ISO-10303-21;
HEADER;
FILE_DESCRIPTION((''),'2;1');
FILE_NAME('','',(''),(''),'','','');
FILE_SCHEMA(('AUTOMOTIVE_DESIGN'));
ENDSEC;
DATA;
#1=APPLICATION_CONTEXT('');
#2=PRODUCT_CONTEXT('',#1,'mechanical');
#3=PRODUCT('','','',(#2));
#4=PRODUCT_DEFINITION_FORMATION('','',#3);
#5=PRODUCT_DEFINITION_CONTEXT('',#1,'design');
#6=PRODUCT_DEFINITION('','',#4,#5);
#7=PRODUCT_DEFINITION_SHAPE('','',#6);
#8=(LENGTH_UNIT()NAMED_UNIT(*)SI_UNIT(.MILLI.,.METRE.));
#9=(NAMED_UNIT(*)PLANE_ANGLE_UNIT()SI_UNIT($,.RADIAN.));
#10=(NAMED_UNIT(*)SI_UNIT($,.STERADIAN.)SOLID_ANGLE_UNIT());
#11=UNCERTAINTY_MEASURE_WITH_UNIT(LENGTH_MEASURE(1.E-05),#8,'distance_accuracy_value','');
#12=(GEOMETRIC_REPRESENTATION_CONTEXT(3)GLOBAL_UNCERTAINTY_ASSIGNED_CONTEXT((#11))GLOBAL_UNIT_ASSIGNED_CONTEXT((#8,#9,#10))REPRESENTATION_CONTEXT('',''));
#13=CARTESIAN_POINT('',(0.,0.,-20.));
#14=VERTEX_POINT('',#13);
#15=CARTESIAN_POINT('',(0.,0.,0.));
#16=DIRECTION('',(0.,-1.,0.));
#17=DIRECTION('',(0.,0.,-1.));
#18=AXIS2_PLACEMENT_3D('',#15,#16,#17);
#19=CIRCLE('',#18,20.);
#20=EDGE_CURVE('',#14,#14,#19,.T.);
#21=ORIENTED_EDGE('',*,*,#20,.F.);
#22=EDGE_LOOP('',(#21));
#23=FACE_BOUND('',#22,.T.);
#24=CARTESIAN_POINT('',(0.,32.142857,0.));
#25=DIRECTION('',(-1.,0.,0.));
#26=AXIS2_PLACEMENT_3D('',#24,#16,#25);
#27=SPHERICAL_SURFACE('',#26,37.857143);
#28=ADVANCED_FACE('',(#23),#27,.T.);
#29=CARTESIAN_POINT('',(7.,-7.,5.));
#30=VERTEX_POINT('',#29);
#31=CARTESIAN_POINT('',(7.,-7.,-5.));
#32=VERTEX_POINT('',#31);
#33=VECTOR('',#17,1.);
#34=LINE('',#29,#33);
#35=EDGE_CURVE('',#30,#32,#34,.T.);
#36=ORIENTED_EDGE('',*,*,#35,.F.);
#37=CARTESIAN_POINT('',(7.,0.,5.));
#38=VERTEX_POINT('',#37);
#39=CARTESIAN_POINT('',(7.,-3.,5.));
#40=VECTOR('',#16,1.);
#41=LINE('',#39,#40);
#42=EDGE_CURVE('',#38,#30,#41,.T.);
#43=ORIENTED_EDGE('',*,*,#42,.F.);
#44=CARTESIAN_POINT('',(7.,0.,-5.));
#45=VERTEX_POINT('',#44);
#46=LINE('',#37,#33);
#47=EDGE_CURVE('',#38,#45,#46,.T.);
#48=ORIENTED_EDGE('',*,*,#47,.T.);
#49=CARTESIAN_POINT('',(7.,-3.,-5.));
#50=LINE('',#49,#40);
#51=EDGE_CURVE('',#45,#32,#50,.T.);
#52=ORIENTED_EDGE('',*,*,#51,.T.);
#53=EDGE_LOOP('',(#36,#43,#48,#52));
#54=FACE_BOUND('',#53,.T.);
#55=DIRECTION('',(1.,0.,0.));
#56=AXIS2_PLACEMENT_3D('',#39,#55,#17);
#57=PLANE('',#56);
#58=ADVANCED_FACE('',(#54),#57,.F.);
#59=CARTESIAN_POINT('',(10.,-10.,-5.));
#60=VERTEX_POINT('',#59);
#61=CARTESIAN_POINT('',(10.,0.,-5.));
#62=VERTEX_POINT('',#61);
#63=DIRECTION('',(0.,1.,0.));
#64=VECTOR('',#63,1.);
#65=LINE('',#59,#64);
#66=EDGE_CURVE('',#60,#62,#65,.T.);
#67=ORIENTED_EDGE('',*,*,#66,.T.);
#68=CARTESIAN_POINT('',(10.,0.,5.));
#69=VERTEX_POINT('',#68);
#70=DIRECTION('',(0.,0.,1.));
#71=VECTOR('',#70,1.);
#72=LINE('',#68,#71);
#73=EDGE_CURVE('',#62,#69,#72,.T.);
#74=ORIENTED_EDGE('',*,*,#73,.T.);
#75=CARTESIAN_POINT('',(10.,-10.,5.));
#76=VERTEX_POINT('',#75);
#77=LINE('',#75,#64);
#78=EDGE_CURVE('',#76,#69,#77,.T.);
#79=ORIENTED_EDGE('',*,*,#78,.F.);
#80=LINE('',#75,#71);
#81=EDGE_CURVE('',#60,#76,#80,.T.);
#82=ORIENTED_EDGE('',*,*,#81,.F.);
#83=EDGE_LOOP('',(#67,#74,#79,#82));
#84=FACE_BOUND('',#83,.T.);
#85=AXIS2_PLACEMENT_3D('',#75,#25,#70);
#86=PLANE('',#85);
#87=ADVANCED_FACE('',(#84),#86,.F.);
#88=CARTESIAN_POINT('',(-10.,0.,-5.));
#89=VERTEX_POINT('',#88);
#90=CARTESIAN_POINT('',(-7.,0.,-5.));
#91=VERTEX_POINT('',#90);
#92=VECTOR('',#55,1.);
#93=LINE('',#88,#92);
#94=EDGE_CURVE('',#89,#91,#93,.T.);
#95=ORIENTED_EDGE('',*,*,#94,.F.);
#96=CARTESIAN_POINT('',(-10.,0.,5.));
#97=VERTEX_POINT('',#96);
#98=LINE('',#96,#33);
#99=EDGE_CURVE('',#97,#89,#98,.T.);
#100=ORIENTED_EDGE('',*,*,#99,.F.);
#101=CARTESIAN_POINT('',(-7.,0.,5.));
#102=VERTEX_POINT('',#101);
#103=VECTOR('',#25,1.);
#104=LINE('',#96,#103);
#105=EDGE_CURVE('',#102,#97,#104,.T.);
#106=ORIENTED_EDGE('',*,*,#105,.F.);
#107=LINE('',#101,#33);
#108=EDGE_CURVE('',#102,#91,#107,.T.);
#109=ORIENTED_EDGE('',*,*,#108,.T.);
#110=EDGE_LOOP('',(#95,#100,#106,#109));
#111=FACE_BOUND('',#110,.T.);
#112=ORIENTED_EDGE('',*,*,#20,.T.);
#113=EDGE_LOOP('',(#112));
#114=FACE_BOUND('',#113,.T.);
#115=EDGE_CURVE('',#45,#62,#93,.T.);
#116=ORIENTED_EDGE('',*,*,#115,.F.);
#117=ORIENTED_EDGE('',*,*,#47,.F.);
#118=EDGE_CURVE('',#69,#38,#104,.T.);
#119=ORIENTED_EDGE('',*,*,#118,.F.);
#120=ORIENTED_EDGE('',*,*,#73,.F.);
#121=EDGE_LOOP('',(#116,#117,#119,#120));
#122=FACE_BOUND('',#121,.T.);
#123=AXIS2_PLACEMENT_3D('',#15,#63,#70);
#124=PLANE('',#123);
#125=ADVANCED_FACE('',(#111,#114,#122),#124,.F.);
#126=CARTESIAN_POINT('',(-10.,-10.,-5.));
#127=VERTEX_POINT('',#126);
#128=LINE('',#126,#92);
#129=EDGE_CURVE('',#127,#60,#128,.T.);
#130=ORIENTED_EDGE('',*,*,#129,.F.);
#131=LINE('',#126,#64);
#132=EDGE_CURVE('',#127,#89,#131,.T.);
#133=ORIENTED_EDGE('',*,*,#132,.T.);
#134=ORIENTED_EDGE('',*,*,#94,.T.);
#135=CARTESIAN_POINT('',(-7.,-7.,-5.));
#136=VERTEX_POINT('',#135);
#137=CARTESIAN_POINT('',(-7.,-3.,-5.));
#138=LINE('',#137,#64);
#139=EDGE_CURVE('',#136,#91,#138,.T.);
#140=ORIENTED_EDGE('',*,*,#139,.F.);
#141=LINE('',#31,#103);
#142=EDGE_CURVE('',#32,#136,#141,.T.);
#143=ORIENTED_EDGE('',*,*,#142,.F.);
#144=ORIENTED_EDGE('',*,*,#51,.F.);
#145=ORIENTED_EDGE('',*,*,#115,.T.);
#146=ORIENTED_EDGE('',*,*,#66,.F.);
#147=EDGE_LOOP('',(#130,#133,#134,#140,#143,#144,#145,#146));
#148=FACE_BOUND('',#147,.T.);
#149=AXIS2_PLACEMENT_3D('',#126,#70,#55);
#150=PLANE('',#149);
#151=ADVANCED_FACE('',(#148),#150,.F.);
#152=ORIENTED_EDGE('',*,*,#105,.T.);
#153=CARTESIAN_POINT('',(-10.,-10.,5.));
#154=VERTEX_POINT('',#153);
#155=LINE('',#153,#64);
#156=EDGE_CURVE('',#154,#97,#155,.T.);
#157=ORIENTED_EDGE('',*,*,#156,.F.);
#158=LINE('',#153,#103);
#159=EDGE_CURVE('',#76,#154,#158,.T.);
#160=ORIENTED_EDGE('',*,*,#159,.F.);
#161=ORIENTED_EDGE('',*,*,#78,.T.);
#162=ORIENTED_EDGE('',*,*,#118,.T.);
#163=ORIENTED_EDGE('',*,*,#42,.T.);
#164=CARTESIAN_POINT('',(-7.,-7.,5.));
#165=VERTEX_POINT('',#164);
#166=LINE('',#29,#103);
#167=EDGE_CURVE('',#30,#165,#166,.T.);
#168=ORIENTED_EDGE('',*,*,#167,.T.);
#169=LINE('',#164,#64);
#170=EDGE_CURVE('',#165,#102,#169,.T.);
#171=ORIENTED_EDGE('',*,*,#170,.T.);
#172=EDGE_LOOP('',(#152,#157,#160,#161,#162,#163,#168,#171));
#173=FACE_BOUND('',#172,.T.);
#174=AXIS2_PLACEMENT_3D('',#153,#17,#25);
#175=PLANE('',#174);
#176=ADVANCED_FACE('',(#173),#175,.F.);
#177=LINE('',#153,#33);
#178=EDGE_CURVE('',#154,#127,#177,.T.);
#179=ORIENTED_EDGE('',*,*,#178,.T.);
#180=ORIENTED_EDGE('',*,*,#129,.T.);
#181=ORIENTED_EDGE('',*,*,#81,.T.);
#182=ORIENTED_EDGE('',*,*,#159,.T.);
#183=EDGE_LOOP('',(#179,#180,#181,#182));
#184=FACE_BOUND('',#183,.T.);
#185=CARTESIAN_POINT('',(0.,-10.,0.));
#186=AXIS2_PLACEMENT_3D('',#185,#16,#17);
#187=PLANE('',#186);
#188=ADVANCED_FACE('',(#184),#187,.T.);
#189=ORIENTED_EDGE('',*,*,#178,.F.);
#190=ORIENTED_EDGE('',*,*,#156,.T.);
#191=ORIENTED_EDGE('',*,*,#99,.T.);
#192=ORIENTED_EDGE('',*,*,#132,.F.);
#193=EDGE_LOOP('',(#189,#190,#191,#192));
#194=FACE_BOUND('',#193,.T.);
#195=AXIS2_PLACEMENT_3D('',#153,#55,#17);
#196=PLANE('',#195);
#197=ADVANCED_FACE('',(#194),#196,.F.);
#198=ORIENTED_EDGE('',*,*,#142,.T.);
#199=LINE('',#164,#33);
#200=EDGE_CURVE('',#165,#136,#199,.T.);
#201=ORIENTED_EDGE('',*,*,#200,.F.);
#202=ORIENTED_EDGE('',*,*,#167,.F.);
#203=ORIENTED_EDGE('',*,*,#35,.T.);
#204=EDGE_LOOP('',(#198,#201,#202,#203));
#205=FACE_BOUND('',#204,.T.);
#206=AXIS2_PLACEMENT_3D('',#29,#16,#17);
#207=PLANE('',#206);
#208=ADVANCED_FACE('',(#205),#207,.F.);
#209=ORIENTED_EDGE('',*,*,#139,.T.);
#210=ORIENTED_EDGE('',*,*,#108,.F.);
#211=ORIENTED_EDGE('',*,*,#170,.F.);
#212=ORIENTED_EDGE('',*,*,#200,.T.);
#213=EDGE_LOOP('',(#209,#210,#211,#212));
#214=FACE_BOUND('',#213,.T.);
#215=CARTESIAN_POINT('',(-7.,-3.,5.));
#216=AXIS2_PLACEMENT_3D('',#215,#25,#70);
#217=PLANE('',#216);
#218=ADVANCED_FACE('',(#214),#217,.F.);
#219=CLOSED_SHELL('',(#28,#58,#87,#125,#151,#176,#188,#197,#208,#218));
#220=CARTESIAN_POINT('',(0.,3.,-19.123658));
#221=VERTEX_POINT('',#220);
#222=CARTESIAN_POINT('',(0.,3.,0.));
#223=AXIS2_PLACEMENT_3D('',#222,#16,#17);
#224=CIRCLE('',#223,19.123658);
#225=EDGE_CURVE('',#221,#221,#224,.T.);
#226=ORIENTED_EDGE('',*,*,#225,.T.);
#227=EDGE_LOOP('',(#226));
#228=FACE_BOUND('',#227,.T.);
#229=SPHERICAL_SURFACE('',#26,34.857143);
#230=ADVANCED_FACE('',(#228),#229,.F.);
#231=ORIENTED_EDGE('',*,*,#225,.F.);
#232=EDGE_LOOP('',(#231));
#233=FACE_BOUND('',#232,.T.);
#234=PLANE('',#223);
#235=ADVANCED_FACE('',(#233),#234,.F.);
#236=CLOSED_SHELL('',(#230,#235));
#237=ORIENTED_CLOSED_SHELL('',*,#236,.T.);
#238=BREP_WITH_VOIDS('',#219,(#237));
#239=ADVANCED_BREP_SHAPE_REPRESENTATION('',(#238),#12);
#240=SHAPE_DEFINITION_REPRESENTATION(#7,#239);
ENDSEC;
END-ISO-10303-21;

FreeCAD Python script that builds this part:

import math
import FreeCAD as App
import Part
import Sketcher

V = App.Vector

doc = App.newDocument("Part")
body = doc.addObject("PartDesign::Body", "Body")

# Sketch on XY plane
sketch1 = body.newObject("Sketcher::SketchObject", "Sketch")
sketch1.AttachmentSupport = (doc.getObject("XY_Plane"), [""])
sketch1.MapMode = "FlatFace"
sketch1.addGeometry([
    Part.LineSegment(V(-20, 0, 0), V(0, 0, 0)),  # 0
    Part.LineSegment(V(0, 0, 0), V(0, 3, 0)),  # 1
    Part.LineSegment(V(0, 3, 0), V(-19.1, 3, 0)),  # 2
    Part.ArcOfCircle(Part.Circle(V(0, 32.1, 0), V(0, 0, 1), 34.9), math.radians(90), math.radians(237)),  # 3
    Part.LineSegment(V(0, 67, 0), V(0, 70, 0)),  # 4
    Part.ArcOfCircle(Part.Circle(V(0, 32.1, 0), V(0, 0, 1), 37.9), math.radians(90), math.radians(238)),  # 5
], False)
sketch1.addConstraint([
    Sketcher.Constraint("Coincident", 0, 2, 1, 1),
    Sketcher.Constraint("Coincident", 1, 2, 2, 1),
    Sketcher.Constraint("Coincident", 2, 2, 3, 2),
    Sketcher.Constraint("Coincident", 3, 1, 4, 1),
    Sketcher.Constraint("Coincident", 4, 2, 5, 1),
    Sketcher.Constraint("Coincident", 5, 2, 0, 1),
    Sketcher.Constraint("Horizontal", 0),
    Sketcher.Constraint("Vertical", 1),
    Sketcher.Constraint("Horizontal", 2),
    Sketcher.Constraint("Vertical", 4),
    Sketcher.Constraint("Coincident", 0, 2, -1, 1),
    Sketcher.Constraint("Coincident", 5, 3, 3, 3),
    Sketcher.Constraint("PointOnObject", 3, 3, -2),
    Sketcher.Constraint("PointOnObject", 3, 1, -2),
    Sketcher.Constraint("Equal", 1, 4),
    Sketcher.Constraint("DistanceX", 0, 1, 0, 2, 20.0),
    Sketcher.Constraint("DistanceY", 1, 1, 1, 2, 3.0),
    Sketcher.Constraint("DistanceY", -1, 1, 3, 1, 67.0),
])
revolution = body.newObject("PartDesign::Revolution", "Revolution")
revolution.Profile = sketch1
revolution.ReferenceAxis = (sketch1, ["V_Axis"])
revolution.Angle = 360

# Sketch on XZ plane
sketch2 = body.newObject("Sketcher::SketchObject", "Sketch001")
sketch2.AttachmentSupport = (doc.getObject("XZ_Plane"), [""])
sketch2.MapMode = "FlatFace"
sketch2.addGeometry([
    Part.LineSegment(V(-10, 5, 0), V(-10, -5, 0)),
    Part.LineSegment(V(-10, -5, 0), V(10, -5, 0)),
    Part.LineSegment(V(10, -5, 0), V(10, 5, 0)),
    Part.LineSegment(V(10, 5, 0), V(-10, 5, 0)),
], False)
sketch2.addConstraint([
    Sketcher.Constraint("Coincident", 0, 2, 1, 1),
    Sketcher.Constraint("Coincident", 1, 2, 2, 1),
    Sketcher.Constraint("Coincident", 2, 2, 3, 1),
    Sketcher.Constraint("Coincident", 3, 2, 0, 1),
    Sketcher.Constraint("Vertical", 0),
    Sketcher.Constraint("Horizontal", 1),
    Sketcher.Constraint("Vertical", 2),
    Sketcher.Constraint("Horizontal", 3),
    Sketcher.Constraint("Symmetric", 0, 2, 2, 2, -1, 1),
    Sketcher.Constraint("DistanceX", 1, 1, 1, 2, 20.0),
    Sketcher.Constraint("DistanceY", 0, 2, 0, 1, 10.0),
])
pad1 = body.newObject("PartDesign::Pad", "Pad")
pad1.Profile = sketch2
pad1.Length = 10

# Sketch on XY plane
sketch3 = body.newObject("Sketcher::SketchObject", "Sketch002")
sketch3.AttachmentSupport = (doc.getObject("XY_Plane"), [""])
sketch3.MapMode = "FlatFace"
sketch3.AttachmentOffset = App.Placement(V(0, 0, -5), App.Rotation())
sketch3.addGeometry([
    Part.LineSegment(V(-7, 0, 0), V(7, 0, 0)),
    Part.LineSegment(V(7, 0, 0), V(7, -7, 0)),
    Part.LineSegment(V(7, -7, 0), V(-7, -7, 0)),
    Part.LineSegment(V(-7, -7, 0), V(-7, 0, 0)),
], False)
sketch3.addConstraint([
    Sketcher.Constraint("Coincident", 0, 2, 1, 1),
    Sketcher.Constraint("Coincident", 1, 2, 2, 1),
    Sketcher.Constraint("Coincident", 2, 2, 3, 1),
    Sketcher.Constraint("Coincident", 3, 2, 0, 1),
    Sketcher.Constraint("Horizontal", 0),
    Sketcher.Constraint("Vertical", 1),
    Sketcher.Constraint("Horizontal", 2),
    Sketcher.Constraint("Vertical", 3),
    Sketcher.Constraint("Symmetric", 0, 2, 3, 2, -1, 1),
    Sketcher.Constraint("DistanceX", 0, 1, 0, 2, 14.0),
    Sketcher.Constraint("DistanceY", 1, 2, 1, 1, 7.0),
])
pocket1 = body.newObject("PartDesign::Pocket", "Pocket")
pocket1.Profile = sketch3
pocket1.Length = 10
pocket1.Reversed = True

doc.recompute()
